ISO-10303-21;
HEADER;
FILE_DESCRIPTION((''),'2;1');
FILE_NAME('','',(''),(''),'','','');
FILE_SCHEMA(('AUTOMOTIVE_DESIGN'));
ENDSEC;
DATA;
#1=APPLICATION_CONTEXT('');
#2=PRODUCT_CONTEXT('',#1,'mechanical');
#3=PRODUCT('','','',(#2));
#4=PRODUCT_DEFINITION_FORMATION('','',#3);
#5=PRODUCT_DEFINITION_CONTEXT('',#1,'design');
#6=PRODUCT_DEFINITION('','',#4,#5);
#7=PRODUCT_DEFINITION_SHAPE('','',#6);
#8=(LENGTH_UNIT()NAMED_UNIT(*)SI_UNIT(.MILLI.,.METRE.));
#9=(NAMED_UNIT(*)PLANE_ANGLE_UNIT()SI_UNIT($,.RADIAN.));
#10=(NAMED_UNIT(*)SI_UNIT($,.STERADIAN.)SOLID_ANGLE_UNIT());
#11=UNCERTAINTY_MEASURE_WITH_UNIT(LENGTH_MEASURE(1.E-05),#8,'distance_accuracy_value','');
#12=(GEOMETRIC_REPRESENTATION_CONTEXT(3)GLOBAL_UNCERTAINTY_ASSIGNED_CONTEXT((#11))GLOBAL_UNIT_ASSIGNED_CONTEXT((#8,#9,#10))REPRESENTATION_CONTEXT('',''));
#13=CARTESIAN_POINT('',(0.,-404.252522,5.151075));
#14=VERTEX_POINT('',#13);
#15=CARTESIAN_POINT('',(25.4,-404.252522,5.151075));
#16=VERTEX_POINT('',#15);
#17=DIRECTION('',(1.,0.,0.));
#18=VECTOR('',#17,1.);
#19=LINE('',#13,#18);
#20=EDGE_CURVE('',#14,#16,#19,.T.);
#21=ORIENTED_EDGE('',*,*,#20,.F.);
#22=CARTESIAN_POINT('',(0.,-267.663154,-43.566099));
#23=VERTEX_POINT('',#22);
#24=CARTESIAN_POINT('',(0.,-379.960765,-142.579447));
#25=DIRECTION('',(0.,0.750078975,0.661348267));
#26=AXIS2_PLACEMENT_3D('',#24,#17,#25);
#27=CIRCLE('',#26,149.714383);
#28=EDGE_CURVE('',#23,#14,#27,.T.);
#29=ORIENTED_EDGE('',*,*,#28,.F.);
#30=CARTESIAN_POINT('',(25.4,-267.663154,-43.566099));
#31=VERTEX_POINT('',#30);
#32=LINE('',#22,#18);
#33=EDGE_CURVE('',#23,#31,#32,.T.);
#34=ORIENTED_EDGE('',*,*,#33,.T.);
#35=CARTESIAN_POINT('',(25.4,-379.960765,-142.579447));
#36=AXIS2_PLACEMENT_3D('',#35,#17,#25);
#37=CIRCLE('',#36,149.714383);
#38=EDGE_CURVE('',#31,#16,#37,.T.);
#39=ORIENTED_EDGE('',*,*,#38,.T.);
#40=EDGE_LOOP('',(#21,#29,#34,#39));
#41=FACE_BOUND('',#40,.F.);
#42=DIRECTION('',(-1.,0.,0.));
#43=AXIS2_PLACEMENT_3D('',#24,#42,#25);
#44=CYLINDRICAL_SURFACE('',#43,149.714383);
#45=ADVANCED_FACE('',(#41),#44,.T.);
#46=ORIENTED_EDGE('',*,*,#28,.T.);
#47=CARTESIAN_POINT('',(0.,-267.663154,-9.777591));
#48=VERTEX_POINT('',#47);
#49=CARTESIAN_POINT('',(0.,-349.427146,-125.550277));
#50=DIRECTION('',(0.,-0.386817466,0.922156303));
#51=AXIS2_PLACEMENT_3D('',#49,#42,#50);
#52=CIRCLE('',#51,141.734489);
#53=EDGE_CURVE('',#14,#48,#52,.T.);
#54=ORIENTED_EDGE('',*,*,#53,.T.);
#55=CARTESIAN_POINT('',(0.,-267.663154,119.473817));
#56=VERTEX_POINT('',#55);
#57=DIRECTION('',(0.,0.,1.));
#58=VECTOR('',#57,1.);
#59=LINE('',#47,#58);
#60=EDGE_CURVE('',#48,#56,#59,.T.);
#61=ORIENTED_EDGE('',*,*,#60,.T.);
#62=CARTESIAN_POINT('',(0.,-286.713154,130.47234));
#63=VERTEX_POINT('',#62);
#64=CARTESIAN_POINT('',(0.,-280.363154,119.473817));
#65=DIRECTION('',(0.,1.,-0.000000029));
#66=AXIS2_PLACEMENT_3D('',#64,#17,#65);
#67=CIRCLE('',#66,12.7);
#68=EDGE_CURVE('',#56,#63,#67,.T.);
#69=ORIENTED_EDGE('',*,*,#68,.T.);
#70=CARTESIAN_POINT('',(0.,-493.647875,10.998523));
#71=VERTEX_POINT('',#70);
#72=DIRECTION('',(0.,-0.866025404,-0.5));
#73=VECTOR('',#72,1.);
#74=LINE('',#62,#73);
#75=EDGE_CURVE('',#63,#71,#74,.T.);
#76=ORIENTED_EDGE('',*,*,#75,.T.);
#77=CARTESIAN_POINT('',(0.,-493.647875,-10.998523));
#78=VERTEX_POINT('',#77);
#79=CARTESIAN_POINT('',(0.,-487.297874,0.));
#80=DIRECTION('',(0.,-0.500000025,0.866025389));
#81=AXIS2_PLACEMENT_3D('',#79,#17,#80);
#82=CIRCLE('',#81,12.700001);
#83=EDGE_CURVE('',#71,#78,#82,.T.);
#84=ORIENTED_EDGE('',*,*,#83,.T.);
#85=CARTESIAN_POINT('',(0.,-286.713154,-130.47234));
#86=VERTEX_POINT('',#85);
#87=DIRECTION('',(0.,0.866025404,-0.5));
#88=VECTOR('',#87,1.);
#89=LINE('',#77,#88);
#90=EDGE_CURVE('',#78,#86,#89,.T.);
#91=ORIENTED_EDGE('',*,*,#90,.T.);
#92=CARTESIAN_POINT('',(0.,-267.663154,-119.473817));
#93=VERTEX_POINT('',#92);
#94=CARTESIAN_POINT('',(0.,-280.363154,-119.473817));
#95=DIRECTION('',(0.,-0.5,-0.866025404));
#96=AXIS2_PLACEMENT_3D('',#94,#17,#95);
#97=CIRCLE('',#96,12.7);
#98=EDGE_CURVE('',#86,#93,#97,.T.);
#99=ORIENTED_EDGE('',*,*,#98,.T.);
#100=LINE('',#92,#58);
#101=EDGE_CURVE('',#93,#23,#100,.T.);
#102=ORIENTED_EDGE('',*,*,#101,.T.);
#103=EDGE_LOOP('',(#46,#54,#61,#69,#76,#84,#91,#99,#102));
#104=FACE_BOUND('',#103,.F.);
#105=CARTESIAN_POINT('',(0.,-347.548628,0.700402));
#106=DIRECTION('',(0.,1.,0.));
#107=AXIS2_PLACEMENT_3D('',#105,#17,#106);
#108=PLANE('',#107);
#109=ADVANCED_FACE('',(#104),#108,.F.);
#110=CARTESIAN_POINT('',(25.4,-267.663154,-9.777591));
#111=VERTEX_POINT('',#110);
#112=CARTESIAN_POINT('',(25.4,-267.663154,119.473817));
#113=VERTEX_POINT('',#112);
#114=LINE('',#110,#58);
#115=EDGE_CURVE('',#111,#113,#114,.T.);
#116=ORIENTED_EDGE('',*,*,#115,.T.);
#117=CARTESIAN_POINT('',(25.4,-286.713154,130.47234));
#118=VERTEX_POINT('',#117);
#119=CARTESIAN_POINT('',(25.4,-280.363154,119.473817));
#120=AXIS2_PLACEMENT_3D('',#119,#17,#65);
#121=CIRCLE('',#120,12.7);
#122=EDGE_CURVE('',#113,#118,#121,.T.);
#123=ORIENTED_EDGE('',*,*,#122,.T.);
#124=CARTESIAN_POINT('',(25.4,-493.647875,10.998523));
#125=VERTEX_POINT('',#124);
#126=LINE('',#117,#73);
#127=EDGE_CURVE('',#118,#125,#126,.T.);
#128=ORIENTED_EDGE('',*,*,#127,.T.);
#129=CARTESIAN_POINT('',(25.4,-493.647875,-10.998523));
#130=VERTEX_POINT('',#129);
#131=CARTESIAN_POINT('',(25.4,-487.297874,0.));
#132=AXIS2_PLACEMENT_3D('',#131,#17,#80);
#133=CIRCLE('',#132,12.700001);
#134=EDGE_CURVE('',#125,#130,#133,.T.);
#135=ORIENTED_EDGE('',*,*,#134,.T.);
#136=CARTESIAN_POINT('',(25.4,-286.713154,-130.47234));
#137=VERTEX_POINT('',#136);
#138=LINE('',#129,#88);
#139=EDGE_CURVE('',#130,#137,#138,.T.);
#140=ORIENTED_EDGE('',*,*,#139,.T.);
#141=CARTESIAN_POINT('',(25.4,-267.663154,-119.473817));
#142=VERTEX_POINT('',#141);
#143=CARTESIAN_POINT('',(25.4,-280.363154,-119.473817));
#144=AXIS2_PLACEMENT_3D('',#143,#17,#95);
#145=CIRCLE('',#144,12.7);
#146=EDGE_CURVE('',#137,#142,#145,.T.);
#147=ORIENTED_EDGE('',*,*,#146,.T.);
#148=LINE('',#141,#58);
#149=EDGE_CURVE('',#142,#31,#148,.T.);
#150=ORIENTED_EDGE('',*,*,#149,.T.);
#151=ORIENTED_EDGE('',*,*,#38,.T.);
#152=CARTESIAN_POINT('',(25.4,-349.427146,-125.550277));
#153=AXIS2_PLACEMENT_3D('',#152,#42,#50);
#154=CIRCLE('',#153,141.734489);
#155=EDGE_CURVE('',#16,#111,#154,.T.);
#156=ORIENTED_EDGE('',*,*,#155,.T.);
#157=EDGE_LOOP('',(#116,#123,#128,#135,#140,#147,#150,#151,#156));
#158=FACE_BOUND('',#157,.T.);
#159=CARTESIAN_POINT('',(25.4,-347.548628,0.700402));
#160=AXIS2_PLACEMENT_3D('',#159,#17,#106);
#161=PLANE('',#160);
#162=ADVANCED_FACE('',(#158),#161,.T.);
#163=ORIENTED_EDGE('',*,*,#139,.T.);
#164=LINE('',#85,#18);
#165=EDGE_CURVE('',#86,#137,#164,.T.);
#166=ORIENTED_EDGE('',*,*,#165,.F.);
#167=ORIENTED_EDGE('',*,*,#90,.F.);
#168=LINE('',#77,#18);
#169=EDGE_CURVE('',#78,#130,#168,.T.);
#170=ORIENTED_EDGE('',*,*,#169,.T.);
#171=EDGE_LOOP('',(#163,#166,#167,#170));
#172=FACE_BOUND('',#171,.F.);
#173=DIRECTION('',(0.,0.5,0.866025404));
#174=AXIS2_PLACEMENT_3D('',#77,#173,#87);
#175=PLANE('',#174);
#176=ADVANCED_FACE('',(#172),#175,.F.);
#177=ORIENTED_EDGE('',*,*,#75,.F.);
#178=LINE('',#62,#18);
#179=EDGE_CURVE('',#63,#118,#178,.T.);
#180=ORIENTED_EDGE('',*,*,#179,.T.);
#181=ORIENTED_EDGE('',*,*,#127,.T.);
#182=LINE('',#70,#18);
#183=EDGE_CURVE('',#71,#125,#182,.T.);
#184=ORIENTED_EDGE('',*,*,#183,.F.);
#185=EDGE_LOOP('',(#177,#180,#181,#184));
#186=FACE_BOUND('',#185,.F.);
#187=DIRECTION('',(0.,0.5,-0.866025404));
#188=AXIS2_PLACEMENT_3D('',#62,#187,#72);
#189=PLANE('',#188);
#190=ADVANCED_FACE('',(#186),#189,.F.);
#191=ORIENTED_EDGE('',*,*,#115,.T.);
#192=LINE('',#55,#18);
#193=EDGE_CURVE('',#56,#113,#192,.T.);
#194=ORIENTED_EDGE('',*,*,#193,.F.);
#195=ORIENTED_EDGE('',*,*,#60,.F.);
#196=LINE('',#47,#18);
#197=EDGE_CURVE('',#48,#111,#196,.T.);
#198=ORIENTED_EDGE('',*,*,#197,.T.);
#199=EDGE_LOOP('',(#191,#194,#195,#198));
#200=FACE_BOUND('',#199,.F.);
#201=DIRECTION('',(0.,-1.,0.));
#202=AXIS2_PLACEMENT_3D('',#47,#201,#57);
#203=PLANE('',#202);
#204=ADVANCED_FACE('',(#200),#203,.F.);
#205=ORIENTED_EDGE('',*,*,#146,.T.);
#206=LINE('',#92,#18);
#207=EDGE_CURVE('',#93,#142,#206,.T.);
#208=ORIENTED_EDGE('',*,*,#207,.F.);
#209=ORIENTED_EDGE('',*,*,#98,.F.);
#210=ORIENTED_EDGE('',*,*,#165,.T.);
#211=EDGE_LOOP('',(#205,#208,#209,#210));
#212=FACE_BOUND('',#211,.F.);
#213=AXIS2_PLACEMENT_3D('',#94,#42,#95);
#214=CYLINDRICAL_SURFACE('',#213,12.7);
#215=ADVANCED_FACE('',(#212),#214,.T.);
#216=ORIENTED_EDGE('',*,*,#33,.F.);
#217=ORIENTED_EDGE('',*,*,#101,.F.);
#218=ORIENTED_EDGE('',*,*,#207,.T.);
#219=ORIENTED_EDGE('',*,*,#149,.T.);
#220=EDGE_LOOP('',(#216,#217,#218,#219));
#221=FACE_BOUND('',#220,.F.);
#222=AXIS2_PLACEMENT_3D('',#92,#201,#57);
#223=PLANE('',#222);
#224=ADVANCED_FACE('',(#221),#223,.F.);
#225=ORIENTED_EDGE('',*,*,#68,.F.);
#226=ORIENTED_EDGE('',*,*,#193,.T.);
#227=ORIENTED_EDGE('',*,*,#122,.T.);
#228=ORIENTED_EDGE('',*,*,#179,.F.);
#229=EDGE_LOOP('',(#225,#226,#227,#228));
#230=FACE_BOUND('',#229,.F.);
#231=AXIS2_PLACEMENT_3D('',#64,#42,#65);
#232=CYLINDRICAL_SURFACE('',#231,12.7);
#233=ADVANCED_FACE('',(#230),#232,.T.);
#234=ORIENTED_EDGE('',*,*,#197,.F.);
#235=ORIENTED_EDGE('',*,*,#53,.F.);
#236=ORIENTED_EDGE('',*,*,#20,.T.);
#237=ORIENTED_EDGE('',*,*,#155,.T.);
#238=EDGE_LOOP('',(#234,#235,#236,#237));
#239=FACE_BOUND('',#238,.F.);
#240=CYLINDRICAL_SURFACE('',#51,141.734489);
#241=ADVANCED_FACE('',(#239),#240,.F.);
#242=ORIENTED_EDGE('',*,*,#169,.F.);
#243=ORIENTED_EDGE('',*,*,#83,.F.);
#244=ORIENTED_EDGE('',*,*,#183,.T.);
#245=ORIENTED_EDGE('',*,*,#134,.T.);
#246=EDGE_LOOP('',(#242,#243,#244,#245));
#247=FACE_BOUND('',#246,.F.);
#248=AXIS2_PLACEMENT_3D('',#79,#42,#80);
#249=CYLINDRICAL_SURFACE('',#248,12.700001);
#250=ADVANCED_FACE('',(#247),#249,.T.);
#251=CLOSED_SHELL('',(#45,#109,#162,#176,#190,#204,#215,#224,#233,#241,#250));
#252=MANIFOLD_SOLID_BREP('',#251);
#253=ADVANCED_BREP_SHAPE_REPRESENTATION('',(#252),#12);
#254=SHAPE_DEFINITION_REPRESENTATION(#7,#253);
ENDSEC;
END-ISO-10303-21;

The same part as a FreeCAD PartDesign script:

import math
import FreeCAD as App
import Part
import Sketcher
from FreeCAD import Vector
Q = App.Units.Quantity

doc = App.newDocument("Part")
params = doc.addObject("Spreadsheet::Sheet", "Params")
for row, (alias, value) in enumerate([
    ("sketch1_radius", "0.5 in"),
    ("pad1_length", "1 in"),
], start=1):
    params.set(f"A{row}", alias)
    params.set(f"B{row}", "=" + value)
    params.setAlias(f"B{row}", alias)

body = doc.addObject("PartDesign::Body", "Body")

# Sketch on YZ plane
sketch1 = doc.addObject("Sketcher::SketchObject", "Sketch")
body.addObject(sketch1)
sketch1.AttachmentSupport = (doc.YZ_Plane, [""])
sketch1.MapMode = "FlatFace"
sketch1.addGeometry(Part.LineSegment(Vector(-287, 130, 0), Vector(-494, 11, 0)), False)
sketch1.addGeometry(Part.ArcOfCircle(Part.Circle(Vector(-487, 0, 0), Vector(0, 0, 1), 13), math.radians(120), math.radians(240)), False)
sketch1.addGeometry(Part.LineSegment(Vector(-494, -11, 0), Vector(-287, -130, 0)), False)
sketch1.addGeometry(Part.ArcOfCircle(Part.Circle(Vector(-280, -119, 0), Vector(0, 0, 1), 13), math.radians(-120), math.radians(0)), False)
sketch1.addGeometry(Part.LineSegment(Vector(-268, -119, 0), Vector(-268, -44, 0)), False)
sketch1.addGeometry(Part.ArcOfCircle(Part.Circle(Vector(-380, -143, 0), Vector(0, 0, 1), 150), math.radians(41), math.radians(99)), False)
sketch1.addGeometry(Part.ArcOfCircle(Part.Circle(Vector(-349, -126, 0), Vector(0, 0, 1), 142), math.radians(55), math.radians(113)), False)
sketch1.addGeometry(Part.LineSegment(Vector(-268, -10, 0), Vector(-268, 119, 0)), False)
sketch1.addGeometry(Part.ArcOfCircle(Part.Circle(Vector(-280, 119, 0), Vector(0, 0, 1), 13), math.radians(0), math.radians(120)), False)
sketch1.addConstraint(Sketcher.Constraint("Tangent", 0, 2, 1, 1))
sketch1.addConstraint(Sketcher.Constraint("Tangent", 1, 2, 2, 1))
sketch1.addConstraint(Sketcher.Constraint("Tangent", 2, 2, 3, 1))
sketch1.addConstraint(Sketcher.Constraint("Tangent", 3, 2, 4, 1))
sketch1.addConstraint(Sketcher.Constraint("Coincident", 4, 2, 5, 1))
sketch1.addConstraint(Sketcher.Constraint("Coincident", 5, 2, 6, 2))
sketch1.addConstraint(Sketcher.Constraint("Coincident", 6, 1, 7, 1))
sketch1.addConstraint(Sketcher.Constraint("Tangent", 7, 2, 8, 1))
sketch1.addConstraint(Sketcher.Constraint("Tangent", 8, 2, 0, 1))
sketch1.addConstraint(Sketcher.Constraint("Vertical", 4))
sketch1.addConstraint(Sketcher.Constraint("Vertical", 7))
sketch1.addConstraint(Sketcher.Constraint("Equal", 1, 3))
sketch1.addConstraint(Sketcher.Constraint("Equal", 3, 8))
sketch1.addConstraint(Sketcher.Constraint("Symmetric", 3, 3, 8, 3, -1))
sketch1.addConstraint(Sketcher.Constraint("PointOnObject", 1, 3, -1))
sketch1.addConstraint(Sketcher.Constraint("Radius", 1, Q("0.5 in")))
sketch1.addConstraint(Sketcher.Constraint("Angle", 0, Q("-150 deg")))
sketch1.addConstraint(Sketcher.Constraint("Radius", 6, 141.734489))
sketch1.addConstraint(Sketcher.Constraint("Radius", 5, 149.714383))
sketch1.addConstraint(Sketcher.Constraint("DistanceY", 7, 1, 7, 2, 129.251408))
sketch1.addConstraint(Sketcher.Constraint("DistanceY", 4, 2, -1, 1, 43.566099))
sketch1.addConstraint(Sketcher.Constraint("DistanceY", 6, 3, 0, 2, 136.5488))
sketch1.addConstraint(Sketcher.Constraint("DistanceY", 1, 2, 5, 2, 16.149598))
sketch1.addConstraint(Sketcher.Constraint("DistanceY", 4, 1, 4, 2, 75.907718))
sketch1.addConstraint(Sketcher.Constraint("DistanceX", 1, 3, -1, 1, 487.297874))
sketch1.setExpression("Constraints[15]", "Params.sketch1_radius")
pad1 = doc.addObject("PartDesign::Pad", "Pad")
body.addObject(pad1)
pad1.Profile = sketch1
pad1.setExpression("Length", "Params.pad1_length")

doc.recompute()
